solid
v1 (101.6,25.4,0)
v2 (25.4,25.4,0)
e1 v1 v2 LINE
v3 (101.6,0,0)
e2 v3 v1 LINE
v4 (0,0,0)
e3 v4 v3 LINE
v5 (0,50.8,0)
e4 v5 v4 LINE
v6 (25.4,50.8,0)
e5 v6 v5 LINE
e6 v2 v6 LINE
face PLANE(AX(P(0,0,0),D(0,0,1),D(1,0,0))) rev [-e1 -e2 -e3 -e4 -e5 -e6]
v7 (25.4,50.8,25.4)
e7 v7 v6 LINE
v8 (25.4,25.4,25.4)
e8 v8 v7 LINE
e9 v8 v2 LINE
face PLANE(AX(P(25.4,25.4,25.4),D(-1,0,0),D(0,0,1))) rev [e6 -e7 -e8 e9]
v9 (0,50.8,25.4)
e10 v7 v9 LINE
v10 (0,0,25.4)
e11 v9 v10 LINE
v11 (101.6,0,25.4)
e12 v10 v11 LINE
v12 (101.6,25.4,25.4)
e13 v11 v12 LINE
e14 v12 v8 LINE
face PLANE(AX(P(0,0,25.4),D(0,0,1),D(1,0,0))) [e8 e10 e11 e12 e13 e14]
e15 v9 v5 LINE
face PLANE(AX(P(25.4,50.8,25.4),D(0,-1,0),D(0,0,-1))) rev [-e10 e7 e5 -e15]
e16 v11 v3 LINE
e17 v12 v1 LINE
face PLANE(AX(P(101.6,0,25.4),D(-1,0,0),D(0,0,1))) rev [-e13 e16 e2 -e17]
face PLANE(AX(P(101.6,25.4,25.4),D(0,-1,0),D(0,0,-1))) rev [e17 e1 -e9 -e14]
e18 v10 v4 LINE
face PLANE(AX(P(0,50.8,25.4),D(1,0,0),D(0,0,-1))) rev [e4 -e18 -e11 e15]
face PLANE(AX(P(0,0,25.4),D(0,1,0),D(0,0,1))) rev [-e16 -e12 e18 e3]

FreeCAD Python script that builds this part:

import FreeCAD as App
import Part
import Sketcher

V = App.Vector
Q = App.Units.Quantity


def add_polygon(sketch, points):
    """Adds a closed chain of lines whose ends are joined by coincident constraints."""
    first, n = sketch.GeometryCount, len(points)
    for a, b in zip(points, points[1:] + points[:1]):
        sketch.addGeometry(Part.LineSegment(App.Vector(*a, 0), App.Vector(*b, 0)), False)
    for i in range(n):
        sketch.addConstraint(Sketcher.Constraint("Coincident", first + i, 2, first + (i + 1) % n, 1))

doc = App.newDocument("Part")
params = doc.addObject("Spreadsheet::Sheet", "Params")
for row, (alias, value) in enumerate([
    ("sketch1_width", "3 in"),
    ("sketch1_width2", "1 in"),
    ("pad1_length", "1 in"),
], start=1):
    params.set(f"A{row}", alias)
    params.set(f"B{row}", "=" + value)
    params.setAlias(f"B{row}", alias)

body = doc.addObject("PartDesign::Body", "Body")

# Sketch on XY plane
sketch1 = body.newObject("Sketcher::SketchObject", "Sketch")
sketch1.AttachmentSupport = (doc.getObject("XY_Plane"), [""])
sketch1.MapMode = "FlatFace"
add_polygon(sketch1, [(102, 0), (102, 25), (25, 25), (25, 51), (0, 51), (0, 0)])  # lines 0-5
sketch1.addConstraint([
    Sketcher.Constraint("Vertical", 0),
    Sketcher.Constraint("Horizontal", 1),
    Sketcher.Constraint("Vertical", 2),
    Sketcher.Constraint("Horizontal", 3),
    Sketcher.Constraint("Vertical", 4),
    Sketcher.Constraint("Horizontal", 5),
    Sketcher.Constraint("Coincident", 4, 2, -1, 1),
    Sketcher.Constraint("Equal", 3, 0),
    Sketcher.Constraint("Equal", 0, 2),
    Sketcher.Constraint("DistanceX", 1, 2, 1, 1, Q("3 in")),
    Sketcher.Constraint("DistanceX", 3, 2, 3, 1, Q("1 in")),
])
sketch1.setExpression("Constraints[15]", "Params.sketch1_width")
sketch1.setExpression("Constraints[16]", "Params.sketch1_width2")
pad1 = body.newObject("PartDesign::Pad", "Pad")
pad1.Profile = sketch1
pad1.setExpression("Length", "Params.pad1_length")

doc.recompute()
